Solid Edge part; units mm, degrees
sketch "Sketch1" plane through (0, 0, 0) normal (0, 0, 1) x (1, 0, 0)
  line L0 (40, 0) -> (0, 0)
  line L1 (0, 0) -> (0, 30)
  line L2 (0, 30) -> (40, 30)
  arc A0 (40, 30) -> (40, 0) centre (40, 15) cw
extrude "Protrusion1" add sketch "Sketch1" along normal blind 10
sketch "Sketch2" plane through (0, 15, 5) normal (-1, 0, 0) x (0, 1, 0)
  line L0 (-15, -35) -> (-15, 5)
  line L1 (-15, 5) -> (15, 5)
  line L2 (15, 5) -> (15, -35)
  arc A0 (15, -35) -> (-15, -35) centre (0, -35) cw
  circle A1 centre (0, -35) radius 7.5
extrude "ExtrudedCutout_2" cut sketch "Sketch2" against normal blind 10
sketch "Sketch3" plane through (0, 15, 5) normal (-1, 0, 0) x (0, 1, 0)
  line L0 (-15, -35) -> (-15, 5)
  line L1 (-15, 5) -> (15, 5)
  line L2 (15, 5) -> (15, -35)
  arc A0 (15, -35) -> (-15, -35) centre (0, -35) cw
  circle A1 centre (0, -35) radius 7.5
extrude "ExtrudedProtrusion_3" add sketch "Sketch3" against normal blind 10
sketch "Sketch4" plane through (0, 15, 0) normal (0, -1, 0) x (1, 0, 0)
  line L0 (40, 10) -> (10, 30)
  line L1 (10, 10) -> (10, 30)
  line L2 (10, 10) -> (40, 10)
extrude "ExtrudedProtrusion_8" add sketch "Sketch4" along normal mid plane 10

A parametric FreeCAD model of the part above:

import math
import FreeCAD as App
import Part
import Sketcher
from FreeCAD import Vector
Q = App.Units.Quantity

doc = App.newDocument("Part")
body = doc.addObject("PartDesign::Body", "Body")

sketch1 = body.newObject("Sketcher::SketchObject", "Sketch")
sketch1.AttachmentSupport = (doc.getObject("XY_Plane"), [""])
sketch1.MapMode = "FlatFace"
sketch1.addGeometry([
    Part.LineSegment(Vector(0, 0, 0), Vector(40, 0, 0)),
    Part.ArcOfCircle(Part.Circle(Vector(40, 15, 0), Vector(0, 0, 1), 15), math.radians(-90), math.radians(90)),
    Part.LineSegment(Vector(40, 30, 0), Vector(0, 30, 0)),
    Part.LineSegment(Vector(0, 30, 0), Vector(0, 0, 0)),
], False)
sketch1.addConstraint([
    Sketcher.Constraint("Tangent", 0, 2, 1, 1),
    Sketcher.Constraint("Tangent", 1, 2, 2, 1),
    Sketcher.Constraint("Coincident", 2, 2, 3, 1),
    Sketcher.Constraint("Coincident", 3, 2, 0, 1),
    Sketcher.Constraint("Horizontal", 0),
    Sketcher.Constraint("Horizontal", 2),
    Sketcher.Constraint("Vertical", 3),
    Sketcher.Constraint("Coincident", 3, 2, -1, 1),
    Sketcher.Constraint("Radius", 1, Q("15 mm")),
    Sketcher.Constraint("DistanceX", 0, 1, 0, 2, Q("40 mm")),
])
pad1 = body.newObject("PartDesign::Pad", "Pad")
pad1.Profile = sketch1
pad1.Length = 10

sketch2 = body.newObject("Sketcher::SketchObject", "Sketch001")
sketch2.AttachmentSupport = (doc.getObject("YZ_Plane"), [""])
sketch2.MapMode = "FlatFace"
sketch2.addGeometry([
    Part.LineSegment(Vector(0, 0, 0), Vector(0, 40, 0)),
    Part.ArcOfCircle(Part.Circle(Vector(15, 40, 0), Vector(0, 0, 1), 15), math.radians(0), math.radians(180)),
    Part.LineSegment(Vector(30, 40, 0), Vector(30, 0, 0)),
    Part.LineSegment(Vector(30, 0, 0), Vector(0, 0, 0)),
    Part.Circle(Vector(15, 40, 0), Vector(0, 0, 1), 8),
], False)
sketch2.addConstraint([
    Sketcher.Constraint("Tangent", 0, 2, 1, 2),
    Sketcher.Constraint("Tangent", 1, 1, 2, 1),
    Sketcher.Constraint("Coincident", 2, 2, 3, 1),
    Sketcher.Constraint("Coincident", 3, 2, 0, 1),
    Sketcher.Constraint("Vertical", 0),
    Sketcher.Constraint("Vertical", 2),
    Sketcher.Constraint("Horizontal", 3),
    Sketcher.Constraint("Coincident", 3, 2, -1, 1),
    Sketcher.Constraint("Coincident", 4, 3, 1, 3),
    Sketcher.Constraint("Diameter", 4, Q("15 mm")),
    Sketcher.Constraint("Radius", 1, Q("15 mm")),
    Sketcher.Constraint("DistanceY", 0, 1, 0, 2, Q("40 mm")),
])
pocket1 = body.newObject("PartDesign::Pocket", "Pocket")
pocket1.Profile = sketch2
pocket1.Length = 10
pocket1.Reversed = True

sketch3 = body.newObject("Sketcher::SketchObject", "Sketch002")
sketch3.AttachmentSupport = (doc.getObject("YZ_Plane"), [""])
sketch3.MapMode = "FlatFace"
sketch3.addGeometry([
    Part.LineSegment(Vector(0, 0, 0), Vector(0, 40, 0)),
    Part.ArcOfCircle(Part.Circle(Vector(15, 40, 0), Vector(0, 0, 1), 15), math.radians(0), math.radians(180)),
    Part.LineSegment(Vector(30, 40, 0), Vector(30, 0, 0)),
    Part.LineSegment(Vector(30, 0, 0), Vector(0, 0, 0)),
    Part.Circle(Vector(15, 40, 0), Vector(0, 0, 1), 8),
], False)
sketch3.addConstraint([
    Sketcher.Constraint("Tangent", 0, 2, 1, 2),
    Sketcher.Constraint("Tangent", 1, 1, 2, 1),
    Sketcher.Constraint("Coincident", 2, 2, 3, 1),
    Sketcher.Constraint("Coincident", 3, 2, 0, 1),
    Sketcher.Constraint("Vertical", 0),
    Sketcher.Constraint("Vertical", 2),
    Sketcher.Constraint("Horizontal", 3),
    Sketcher.Constraint("Coincident", 3, 2, -1, 1),
    Sketcher.Constraint("Coincident", 4, 3, 1, 3),
    Sketcher.Constraint("Diameter", 4, Q("15 mm")),
    Sketcher.Constraint("Radius", 1, Q("15 mm")),
    Sketcher.Constraint("DistanceY", 0, 1, 0, 2, Q("40 mm")),
])
pad2 = body.newObject("PartDesign::Pad", "Pad001")
pad2.Profile = sketch3
pad2.Length = 10

sketch4 = body.newObject("Sketcher::SketchObject", "Sketch003")
sketch4.AttachmentSupport = (doc.getObject("XZ_Plane"), [""])
sketch4.MapMode = "FlatFace"
sketch4.AttachmentOffset = App.Placement(Vector(0, 0, -15), App.Rotation())
sketch4.addGeometry([
    Part.LineSegment(Vector(10, 10, 0), Vector(40, 10, 0)),
    Part.LineSegment(Vector(40, 10, 0), Vector(10, 30, 0)),
    Part.LineSegment(Vector(10, 30, 0), Vector(10, 10, 0)),
], False)
sketch4.addConstraint([
    Sketcher.Constraint("Coincident", 0, 2, 1, 1),
    Sketcher.Constraint("Coincident", 1, 2, 2, 1),
    Sketcher.Constraint("Coincident", 2, 2, 0, 1),
    Sketcher.Constraint("Horizontal", 0),
    Sketcher.Constraint("Vertical", 2),
    Sketcher.Constraint("DistanceX", 0, 1, 0, 2, Q("30 mm")),
    Sketcher.Constraint("DistanceY", 2, 2, 2, 1, Q("20 mm")),
    Sketcher.Constraint("DistanceX", -1, 1, 0, 2, Q("40 mm")),
    Sketcher.Constraint("DistanceY", -1, 1, 0, 2, Q("10 mm")),
])
pad3 = body.newObject("PartDesign::Pad", "Pad002")
pad3.Profile = sketch4
pad3.Length = 10
pad3.Midplane = True

doc.recompute()
